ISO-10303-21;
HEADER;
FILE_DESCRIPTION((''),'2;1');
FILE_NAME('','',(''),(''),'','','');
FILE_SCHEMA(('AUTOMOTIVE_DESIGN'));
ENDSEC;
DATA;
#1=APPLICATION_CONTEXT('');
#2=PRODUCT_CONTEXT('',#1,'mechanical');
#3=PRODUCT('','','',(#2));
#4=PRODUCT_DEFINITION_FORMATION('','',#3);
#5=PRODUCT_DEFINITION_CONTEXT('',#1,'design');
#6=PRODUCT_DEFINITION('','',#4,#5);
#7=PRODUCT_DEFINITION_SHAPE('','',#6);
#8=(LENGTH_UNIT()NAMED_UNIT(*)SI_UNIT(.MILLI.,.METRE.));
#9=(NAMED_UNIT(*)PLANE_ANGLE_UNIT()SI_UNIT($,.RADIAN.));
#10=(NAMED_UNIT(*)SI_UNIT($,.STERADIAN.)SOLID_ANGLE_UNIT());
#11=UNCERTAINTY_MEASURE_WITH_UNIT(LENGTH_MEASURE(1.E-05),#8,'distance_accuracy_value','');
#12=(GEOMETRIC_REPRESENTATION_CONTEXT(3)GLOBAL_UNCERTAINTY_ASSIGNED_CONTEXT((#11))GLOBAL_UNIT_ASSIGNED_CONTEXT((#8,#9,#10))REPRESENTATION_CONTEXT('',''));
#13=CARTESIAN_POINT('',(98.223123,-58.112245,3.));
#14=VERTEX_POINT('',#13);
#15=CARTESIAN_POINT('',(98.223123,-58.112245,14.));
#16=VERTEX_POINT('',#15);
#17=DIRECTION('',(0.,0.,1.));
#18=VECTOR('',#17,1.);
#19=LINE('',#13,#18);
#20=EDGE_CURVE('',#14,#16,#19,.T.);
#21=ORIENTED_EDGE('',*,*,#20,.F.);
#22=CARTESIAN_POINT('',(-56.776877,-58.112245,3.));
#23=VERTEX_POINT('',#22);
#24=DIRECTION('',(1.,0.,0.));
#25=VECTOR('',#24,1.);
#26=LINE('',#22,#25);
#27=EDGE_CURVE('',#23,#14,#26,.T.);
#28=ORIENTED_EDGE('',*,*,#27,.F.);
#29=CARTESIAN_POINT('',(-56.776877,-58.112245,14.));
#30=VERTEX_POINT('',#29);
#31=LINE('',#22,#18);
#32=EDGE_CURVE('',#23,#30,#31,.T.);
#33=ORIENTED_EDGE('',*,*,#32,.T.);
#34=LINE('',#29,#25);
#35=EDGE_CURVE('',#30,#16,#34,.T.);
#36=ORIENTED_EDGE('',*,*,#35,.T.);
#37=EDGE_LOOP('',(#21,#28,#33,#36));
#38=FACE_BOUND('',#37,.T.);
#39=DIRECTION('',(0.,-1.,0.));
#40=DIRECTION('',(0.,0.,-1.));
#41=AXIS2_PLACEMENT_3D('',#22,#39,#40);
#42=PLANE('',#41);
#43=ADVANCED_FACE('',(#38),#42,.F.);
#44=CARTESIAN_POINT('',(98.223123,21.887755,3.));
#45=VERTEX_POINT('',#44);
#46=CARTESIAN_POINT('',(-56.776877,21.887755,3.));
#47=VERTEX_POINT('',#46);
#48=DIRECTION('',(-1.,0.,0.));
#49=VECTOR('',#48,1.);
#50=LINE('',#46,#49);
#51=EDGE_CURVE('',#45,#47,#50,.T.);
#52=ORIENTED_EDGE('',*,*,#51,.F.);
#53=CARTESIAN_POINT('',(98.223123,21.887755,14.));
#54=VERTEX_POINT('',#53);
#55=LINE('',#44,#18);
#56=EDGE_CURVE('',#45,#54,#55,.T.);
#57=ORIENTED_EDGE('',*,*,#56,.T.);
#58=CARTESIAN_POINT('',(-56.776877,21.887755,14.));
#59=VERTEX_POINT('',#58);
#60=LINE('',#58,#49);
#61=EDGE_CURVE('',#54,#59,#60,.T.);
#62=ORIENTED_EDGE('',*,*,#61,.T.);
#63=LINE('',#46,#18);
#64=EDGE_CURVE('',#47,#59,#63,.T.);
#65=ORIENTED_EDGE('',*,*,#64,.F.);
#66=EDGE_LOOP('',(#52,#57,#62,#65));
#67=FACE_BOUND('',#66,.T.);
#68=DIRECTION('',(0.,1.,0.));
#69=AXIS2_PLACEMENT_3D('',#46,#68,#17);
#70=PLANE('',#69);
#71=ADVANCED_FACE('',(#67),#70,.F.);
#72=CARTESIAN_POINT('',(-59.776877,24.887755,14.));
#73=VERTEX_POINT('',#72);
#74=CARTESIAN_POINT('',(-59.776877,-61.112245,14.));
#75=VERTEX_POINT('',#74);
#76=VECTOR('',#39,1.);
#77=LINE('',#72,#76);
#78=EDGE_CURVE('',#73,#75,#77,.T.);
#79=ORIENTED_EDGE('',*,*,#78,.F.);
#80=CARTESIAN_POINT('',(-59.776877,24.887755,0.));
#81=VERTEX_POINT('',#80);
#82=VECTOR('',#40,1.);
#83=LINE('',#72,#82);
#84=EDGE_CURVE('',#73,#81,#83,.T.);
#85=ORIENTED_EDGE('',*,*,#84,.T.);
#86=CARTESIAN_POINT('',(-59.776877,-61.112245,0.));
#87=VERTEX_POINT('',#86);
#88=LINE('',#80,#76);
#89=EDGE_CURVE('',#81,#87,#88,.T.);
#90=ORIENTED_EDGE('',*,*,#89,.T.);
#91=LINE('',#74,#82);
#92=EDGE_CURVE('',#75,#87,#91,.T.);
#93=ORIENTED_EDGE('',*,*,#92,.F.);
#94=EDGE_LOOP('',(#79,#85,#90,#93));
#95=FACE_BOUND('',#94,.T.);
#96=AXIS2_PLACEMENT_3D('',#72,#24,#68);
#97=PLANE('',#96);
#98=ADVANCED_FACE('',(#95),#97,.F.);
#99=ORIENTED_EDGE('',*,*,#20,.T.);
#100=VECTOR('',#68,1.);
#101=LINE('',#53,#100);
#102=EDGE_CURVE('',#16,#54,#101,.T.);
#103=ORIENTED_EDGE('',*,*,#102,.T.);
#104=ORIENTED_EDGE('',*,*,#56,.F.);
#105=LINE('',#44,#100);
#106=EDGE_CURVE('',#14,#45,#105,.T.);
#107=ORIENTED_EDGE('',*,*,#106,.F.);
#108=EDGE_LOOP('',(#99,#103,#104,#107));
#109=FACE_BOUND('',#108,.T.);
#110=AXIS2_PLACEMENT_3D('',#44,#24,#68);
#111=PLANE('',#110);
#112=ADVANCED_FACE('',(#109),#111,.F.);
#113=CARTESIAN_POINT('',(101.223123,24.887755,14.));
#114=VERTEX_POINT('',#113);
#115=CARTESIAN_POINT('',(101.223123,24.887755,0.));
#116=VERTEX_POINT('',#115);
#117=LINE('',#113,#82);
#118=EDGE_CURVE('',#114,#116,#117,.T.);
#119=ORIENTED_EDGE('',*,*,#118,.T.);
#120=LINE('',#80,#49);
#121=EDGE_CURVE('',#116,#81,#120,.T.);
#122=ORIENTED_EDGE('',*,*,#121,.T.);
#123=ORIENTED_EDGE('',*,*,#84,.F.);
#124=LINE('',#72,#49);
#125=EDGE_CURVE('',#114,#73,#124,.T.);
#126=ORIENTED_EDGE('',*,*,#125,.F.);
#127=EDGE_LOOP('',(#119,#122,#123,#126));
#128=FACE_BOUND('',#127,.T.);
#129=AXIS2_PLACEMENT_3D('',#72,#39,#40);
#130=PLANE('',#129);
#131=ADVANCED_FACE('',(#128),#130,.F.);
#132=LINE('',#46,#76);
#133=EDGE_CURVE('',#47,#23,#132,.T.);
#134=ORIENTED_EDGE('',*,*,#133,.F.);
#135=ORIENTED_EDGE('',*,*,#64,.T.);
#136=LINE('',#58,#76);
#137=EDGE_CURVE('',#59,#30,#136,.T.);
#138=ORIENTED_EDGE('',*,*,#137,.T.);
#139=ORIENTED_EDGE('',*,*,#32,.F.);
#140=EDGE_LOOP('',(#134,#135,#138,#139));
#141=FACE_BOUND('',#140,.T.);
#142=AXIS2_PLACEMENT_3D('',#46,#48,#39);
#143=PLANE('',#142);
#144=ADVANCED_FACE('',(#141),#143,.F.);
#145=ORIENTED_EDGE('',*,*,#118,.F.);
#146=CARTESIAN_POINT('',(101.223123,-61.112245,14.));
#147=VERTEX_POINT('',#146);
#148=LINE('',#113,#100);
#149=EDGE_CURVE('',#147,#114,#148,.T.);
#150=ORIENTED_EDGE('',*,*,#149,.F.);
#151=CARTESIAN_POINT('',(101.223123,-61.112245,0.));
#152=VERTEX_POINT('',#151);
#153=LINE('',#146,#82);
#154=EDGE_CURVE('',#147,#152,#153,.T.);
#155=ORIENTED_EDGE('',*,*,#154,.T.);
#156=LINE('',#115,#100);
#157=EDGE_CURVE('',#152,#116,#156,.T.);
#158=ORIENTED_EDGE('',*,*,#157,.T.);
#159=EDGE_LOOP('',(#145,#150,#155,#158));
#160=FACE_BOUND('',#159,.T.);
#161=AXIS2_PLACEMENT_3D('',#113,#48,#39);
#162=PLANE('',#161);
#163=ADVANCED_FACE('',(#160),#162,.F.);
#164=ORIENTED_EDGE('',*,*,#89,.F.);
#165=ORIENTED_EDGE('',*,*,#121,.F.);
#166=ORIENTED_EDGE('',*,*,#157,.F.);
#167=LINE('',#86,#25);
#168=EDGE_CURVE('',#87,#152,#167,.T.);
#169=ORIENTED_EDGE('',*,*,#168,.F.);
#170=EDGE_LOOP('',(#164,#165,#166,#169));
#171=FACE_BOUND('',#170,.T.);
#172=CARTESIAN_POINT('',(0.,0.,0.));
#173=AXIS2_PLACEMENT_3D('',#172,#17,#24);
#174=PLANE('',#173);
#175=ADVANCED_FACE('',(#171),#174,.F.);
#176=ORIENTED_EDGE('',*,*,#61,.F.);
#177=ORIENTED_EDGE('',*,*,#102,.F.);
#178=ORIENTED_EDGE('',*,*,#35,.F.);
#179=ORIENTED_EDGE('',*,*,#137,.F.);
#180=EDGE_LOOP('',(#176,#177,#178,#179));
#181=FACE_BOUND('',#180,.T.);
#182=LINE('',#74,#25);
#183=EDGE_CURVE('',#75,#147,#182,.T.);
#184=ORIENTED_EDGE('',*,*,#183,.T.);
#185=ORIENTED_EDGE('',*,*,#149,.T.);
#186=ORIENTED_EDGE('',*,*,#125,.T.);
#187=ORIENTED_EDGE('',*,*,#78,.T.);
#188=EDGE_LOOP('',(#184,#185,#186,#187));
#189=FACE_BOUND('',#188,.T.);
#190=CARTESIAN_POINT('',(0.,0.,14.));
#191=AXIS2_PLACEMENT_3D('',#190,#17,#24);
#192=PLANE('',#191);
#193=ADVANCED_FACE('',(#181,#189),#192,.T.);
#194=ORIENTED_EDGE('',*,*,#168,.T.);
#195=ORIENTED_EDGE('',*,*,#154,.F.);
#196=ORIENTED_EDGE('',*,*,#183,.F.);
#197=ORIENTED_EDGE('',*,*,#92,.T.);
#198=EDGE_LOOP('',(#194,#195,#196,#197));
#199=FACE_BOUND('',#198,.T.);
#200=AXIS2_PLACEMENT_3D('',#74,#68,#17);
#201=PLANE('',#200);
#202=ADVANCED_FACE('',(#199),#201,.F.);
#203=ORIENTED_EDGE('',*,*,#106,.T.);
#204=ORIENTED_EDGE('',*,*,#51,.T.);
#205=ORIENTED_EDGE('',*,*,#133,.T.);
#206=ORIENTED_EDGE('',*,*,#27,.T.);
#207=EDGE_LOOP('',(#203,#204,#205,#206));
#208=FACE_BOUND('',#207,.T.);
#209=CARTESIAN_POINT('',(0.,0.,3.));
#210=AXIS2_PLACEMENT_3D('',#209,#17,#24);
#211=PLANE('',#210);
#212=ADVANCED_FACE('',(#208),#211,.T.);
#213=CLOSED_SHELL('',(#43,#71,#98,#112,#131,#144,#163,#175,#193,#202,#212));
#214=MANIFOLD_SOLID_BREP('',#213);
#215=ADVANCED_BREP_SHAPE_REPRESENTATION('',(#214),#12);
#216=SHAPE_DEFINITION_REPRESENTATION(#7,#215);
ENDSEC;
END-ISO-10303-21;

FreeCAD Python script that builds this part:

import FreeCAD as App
import Part
import Sketcher


def add_polygon(sketch, points):
    """Adds a closed chain of lines whose ends are joined by coincident constraints."""
    first, n = sketch.GeometryCount, len(points)
    for a, b in zip(points, points[1:] + points[:1]):
        sketch.addGeometry(Part.LineSegment(App.Vector(*a, 0), App.Vector(*b, 0)), False)
    for i in range(n):
        sketch.addConstraint(Sketcher.Constraint("Coincident", first + i, 2, first + (i + 1) % n, 1))

doc = App.newDocument("Part")
body = doc.addObject("PartDesign::Body", "Body")

sketch1 = body.newObject("Sketcher::SketchObject", "Sketch")
sketch1.AttachmentSupport = (doc.getObject("XY_Plane"), [""])
sketch1.MapMode = "FlatFace"
add_polygon(sketch1, [(-60, 25), (-60, -61), (101, -61), (101, 25)])
sketch1.addConstraint([
    Sketcher.Constraint("Vertical", 0),
    Sketcher.Constraint("Horizontal", 1),
    Sketcher.Constraint("Vertical", 2),
    Sketcher.Constraint("Horizontal", 3),
    Sketcher.Constraint("DistanceX", 1, 1, 1, 2, 161.0),
    Sketcher.Constraint("DistanceY", 0, 2, 0, 1, 86.0),
    Sketcher.Constraint("DistanceX", 0, 2, -1, 1, 59.776877),
    Sketcher.Constraint("DistanceY", 0, 2, -1, 1, 61.112245),
])
pad1 = body.newObject("PartDesign::Pad", "Pad")
pad1.Profile = sketch1
pad1.Length = 14

sketch2 = body.newObject("Sketcher::SketchObject", "Sketch001")
sketch2.AttachmentSupport = (doc.getObject("XY_Plane"), [""])
sketch2.MapMode = "FlatFace"
sketch2.AttachmentOffset = App.Placement(App.Vector(0, 0, 14), App.Rotation())
add_polygon(sketch2, [(-57, 22), (-57, -58), (98, -58), (98, 22)])
sketch2.addConstraint([
    Sketcher.Constraint("Vertical", 0),
    Sketcher.Constraint("Horizontal", 1),
    Sketcher.Constraint("Vertical", 2),
    Sketcher.Constraint("Horizontal", 3),
    Sketcher.Constraint("DistanceX", 1, 1, 1, 2, 155.0),
    Sketcher.Constraint("DistanceY", 0, 2, 0, 1, 80.0),
    Sketcher.Constraint("DistanceX", 0, 2, -1, 1, 56.776877),
    Sketcher.Constraint("DistanceY", 0, 2, -1, 1, 58.112245),
])
pocket1 = body.newObject("PartDesign::Pocket", "Pocket")
pocket1.Profile = sketch2
pocket1.Length = 11

doc.recompute()
